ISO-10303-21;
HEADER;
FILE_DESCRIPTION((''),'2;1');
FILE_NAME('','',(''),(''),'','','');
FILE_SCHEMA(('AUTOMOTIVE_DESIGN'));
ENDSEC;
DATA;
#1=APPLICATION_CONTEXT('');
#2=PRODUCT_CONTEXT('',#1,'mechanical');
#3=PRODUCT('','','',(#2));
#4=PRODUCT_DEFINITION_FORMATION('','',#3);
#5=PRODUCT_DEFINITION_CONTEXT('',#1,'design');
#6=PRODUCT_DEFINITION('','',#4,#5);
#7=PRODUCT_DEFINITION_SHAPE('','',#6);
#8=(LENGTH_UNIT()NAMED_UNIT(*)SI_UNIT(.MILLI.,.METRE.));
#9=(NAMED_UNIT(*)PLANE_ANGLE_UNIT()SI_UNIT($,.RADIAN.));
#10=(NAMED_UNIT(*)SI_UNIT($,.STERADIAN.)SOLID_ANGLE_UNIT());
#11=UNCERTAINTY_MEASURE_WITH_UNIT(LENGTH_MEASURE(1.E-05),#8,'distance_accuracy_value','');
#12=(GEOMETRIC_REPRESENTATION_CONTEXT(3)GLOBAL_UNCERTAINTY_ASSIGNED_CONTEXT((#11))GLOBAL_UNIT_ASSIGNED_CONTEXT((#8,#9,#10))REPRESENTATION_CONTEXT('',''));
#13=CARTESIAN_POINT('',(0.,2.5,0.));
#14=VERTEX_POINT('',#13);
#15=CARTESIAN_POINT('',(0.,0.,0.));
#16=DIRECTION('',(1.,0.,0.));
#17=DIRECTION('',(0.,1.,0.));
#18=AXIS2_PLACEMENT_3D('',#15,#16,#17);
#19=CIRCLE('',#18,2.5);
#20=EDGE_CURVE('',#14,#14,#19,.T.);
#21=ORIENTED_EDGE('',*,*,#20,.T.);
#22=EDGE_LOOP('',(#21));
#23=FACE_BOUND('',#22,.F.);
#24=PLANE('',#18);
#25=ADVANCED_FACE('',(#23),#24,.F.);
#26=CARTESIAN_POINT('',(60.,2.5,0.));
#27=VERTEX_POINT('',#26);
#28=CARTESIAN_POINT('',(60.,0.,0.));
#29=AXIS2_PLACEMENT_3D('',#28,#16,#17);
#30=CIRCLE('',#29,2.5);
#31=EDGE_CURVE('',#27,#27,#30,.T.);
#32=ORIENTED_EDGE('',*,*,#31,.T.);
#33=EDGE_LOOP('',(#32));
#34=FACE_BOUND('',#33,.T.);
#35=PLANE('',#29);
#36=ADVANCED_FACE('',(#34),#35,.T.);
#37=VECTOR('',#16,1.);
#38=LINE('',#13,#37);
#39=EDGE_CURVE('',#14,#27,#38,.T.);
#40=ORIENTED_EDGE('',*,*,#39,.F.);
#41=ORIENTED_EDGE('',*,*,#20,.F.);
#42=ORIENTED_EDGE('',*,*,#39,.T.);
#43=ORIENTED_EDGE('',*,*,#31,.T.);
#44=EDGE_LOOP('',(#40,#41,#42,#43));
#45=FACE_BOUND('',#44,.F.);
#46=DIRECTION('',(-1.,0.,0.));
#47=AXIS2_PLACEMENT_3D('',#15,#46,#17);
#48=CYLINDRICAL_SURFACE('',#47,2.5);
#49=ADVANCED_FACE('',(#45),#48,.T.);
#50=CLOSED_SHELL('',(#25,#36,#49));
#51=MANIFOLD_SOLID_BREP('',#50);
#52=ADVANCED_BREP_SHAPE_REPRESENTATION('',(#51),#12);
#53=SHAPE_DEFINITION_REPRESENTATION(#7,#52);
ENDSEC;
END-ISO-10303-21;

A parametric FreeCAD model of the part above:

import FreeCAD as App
import Part
import Sketcher
from FreeCAD import Vector
Q = App.Units.Quantity

doc = App.newDocument("Part")
body = doc.addObject("PartDesign::Body", "Body")

sketch1 = doc.addObject("Sketcher::SketchObject", "Sketch")
body.addObject(sketch1)
sketch1.AttachmentSupport = (doc.YZ_Plane, [""])
sketch1.MapMode = "FlatFace"
sketch1.addGeometry(Part.Circle(Vector(0, 0, 0), Vector(0, 0, 1), 2.5), False)
sketch1.addConstraint([
    Sketcher.Constraint("Coincident", 0, 3, -1, 1),
    Sketcher.Constraint("Diameter", 0, Q("5 mm")),
])
pad1 = doc.addObject("PartDesign::Pad", "Pad")
body.addObject(pad1)
pad1.Profile = sketch1
pad1.Length = 60

doc.recompute()
